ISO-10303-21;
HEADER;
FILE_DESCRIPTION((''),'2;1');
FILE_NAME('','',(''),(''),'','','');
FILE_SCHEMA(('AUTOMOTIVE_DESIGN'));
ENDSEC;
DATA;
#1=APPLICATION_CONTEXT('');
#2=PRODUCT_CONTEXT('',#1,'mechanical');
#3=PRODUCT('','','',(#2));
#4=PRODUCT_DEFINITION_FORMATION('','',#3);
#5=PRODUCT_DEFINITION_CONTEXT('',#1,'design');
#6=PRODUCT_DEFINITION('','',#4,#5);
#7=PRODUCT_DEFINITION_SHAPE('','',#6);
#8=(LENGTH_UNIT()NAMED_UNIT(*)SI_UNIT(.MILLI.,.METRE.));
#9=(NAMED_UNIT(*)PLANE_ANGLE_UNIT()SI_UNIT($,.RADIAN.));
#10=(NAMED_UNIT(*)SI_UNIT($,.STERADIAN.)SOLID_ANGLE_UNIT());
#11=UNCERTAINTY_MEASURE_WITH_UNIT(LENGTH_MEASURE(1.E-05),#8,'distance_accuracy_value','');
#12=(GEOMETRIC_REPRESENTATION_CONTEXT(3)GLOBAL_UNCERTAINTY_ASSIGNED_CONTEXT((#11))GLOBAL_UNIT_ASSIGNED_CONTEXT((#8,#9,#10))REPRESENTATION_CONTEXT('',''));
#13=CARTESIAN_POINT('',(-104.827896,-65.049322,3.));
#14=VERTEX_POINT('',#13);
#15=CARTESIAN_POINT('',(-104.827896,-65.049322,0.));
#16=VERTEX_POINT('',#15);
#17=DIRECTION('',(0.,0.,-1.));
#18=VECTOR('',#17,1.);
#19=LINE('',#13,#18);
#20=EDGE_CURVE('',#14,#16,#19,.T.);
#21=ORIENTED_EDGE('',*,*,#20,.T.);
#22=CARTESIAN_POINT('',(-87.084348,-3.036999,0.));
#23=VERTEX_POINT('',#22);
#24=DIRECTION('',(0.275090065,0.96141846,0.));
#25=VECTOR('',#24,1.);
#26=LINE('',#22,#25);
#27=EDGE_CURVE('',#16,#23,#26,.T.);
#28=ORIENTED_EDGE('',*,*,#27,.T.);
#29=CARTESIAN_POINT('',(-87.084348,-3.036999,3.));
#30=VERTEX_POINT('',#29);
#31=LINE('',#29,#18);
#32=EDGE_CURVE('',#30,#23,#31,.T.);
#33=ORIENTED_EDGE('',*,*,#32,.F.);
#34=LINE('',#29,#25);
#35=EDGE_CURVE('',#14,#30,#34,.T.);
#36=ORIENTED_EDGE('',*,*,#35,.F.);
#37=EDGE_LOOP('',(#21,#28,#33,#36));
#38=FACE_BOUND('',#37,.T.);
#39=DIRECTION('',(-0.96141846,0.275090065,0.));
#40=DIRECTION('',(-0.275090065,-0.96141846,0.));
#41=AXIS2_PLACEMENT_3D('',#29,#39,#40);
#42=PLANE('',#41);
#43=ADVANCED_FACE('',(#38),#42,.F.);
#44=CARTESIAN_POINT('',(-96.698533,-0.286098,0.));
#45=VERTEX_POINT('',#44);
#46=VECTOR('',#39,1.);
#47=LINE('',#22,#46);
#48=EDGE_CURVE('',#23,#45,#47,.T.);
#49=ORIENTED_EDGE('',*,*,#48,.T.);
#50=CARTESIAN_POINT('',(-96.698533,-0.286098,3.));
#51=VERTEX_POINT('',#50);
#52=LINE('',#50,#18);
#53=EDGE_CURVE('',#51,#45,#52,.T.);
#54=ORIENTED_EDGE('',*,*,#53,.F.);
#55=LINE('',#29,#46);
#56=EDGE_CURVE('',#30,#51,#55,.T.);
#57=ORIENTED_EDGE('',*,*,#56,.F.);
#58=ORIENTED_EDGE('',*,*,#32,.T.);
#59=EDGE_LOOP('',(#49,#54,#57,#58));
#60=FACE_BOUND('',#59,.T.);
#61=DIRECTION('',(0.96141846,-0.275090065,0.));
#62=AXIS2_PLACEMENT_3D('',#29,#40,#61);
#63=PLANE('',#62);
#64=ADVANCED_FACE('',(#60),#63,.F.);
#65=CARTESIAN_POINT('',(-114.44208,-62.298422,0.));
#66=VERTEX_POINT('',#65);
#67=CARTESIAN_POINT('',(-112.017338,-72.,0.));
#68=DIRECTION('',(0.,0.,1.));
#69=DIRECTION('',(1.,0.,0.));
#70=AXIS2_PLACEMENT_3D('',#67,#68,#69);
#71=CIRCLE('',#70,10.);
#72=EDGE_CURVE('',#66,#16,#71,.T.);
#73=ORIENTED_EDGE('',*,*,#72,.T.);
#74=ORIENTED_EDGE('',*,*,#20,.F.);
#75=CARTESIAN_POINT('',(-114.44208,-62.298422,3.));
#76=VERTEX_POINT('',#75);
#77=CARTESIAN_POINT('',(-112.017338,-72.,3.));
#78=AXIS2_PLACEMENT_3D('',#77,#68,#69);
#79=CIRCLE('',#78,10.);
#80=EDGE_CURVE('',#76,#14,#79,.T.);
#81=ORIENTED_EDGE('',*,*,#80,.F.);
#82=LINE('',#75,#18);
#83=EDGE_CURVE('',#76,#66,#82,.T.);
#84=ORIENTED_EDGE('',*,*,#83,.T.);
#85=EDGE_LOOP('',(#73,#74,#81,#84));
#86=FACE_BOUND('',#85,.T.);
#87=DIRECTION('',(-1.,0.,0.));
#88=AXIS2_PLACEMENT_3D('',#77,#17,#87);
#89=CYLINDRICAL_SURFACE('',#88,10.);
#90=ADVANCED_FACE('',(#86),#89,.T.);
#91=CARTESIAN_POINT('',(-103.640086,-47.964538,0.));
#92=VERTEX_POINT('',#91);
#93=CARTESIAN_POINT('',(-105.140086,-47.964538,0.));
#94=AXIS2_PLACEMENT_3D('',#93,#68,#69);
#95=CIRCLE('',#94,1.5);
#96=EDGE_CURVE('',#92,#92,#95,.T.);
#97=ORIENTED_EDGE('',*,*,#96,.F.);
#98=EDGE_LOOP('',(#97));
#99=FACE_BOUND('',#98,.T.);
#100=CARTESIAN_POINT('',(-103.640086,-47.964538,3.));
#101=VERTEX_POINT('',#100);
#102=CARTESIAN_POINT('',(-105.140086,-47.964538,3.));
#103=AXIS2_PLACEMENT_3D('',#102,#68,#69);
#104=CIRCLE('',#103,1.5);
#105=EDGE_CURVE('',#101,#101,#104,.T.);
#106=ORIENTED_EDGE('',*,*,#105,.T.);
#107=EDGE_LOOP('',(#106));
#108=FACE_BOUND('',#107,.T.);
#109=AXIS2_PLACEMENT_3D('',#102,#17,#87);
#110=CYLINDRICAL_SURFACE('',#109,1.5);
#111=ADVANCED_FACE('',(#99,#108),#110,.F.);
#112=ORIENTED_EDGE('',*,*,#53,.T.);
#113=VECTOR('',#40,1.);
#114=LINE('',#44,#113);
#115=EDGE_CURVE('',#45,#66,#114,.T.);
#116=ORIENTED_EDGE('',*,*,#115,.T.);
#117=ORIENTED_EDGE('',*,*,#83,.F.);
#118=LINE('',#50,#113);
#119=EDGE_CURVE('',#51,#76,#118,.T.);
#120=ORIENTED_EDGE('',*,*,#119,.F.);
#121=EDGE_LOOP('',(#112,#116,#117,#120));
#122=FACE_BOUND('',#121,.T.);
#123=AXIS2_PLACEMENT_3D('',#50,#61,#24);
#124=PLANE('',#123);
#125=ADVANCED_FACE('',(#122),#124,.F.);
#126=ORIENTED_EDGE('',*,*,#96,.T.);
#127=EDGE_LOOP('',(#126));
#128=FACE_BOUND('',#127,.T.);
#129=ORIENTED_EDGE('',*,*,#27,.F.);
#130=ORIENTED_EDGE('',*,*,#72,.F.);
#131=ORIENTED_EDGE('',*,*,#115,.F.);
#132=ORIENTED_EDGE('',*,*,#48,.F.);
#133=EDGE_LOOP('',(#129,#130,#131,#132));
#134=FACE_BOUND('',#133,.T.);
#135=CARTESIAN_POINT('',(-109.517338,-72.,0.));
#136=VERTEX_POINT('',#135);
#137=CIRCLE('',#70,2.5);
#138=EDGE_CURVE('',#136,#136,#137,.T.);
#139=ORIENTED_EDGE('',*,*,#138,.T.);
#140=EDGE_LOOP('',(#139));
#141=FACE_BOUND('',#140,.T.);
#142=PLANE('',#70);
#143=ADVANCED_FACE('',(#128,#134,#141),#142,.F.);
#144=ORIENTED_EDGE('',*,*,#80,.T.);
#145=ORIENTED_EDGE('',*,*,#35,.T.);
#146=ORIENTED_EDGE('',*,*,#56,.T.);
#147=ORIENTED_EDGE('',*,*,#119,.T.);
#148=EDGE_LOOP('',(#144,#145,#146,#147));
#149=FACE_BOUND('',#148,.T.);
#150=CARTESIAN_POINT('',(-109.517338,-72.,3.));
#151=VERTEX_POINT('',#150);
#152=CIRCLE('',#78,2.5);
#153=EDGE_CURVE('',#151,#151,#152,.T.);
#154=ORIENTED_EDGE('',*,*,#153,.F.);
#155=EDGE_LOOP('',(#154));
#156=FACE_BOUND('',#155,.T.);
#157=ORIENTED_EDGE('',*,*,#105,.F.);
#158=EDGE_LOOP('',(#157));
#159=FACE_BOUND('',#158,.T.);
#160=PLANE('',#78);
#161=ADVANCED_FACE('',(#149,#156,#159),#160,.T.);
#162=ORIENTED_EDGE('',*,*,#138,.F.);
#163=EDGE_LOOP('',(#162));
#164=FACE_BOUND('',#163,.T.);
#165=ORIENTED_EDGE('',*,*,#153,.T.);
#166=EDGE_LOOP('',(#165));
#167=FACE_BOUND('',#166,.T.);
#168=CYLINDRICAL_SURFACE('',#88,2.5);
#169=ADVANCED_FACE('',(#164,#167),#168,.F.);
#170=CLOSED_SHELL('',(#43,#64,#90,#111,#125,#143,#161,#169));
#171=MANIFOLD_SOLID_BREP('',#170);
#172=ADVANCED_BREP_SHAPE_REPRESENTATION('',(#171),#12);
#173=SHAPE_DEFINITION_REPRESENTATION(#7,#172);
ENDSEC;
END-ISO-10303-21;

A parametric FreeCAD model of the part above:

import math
import FreeCAD as App
import Part
import Sketcher
Q = App.Units.Quantity

doc = App.newDocument("Part")
params = doc.addObject("Spreadsheet::Sheet", "Params")
for row, (alias, value) in enumerate([
    ("sketch1_diameter", "5 mm"),
    ("sketch1_diameter2", "3 mm"),
    ("sketch1_radius", "10 mm"),
    ("sketch1_length", "10 mm"),
    ("pad1_length", "3 mm"),
], start=1):
    params.set(f"A{row}", alias)
    params.set(f"B{row}", "=" + value)
    params.setAlias(f"B{row}", alias)

body = doc.addObject("PartDesign::Body", "Body")

# Sketch on XY plane
sketch1 = body.newObject("Sketcher::SketchObject", "Sketch")
sketch1.AttachmentSupport = (doc.getObject("XY_Plane"), [""])
sketch1.MapMode = "FlatFace"
sketch1.addGeometry([
    Part.LineSegment(App.Vector(-104.8, -65, 0), App.Vector(-87.1, -3, 0)),  # 0
    Part.LineSegment(App.Vector(-87.1, -3, 0), App.Vector(-96.7, -0.3, 0)),  # 1
    Part.LineSegment(App.Vector(-96.7, -0.3, 0), App.Vector(-114.4, -62.3, 0)),  # 2
    Part.ArcOfCircle(Part.Circle(App.Vector(-112, -72, 0), App.Vector(0, 0, 1), 10), math.radians(104), math.radians(404)),  # 3
    Part.Circle(App.Vector(-112, -72, 0), App.Vector(0, 0, 1), 2.5),  # 4
    Part.Circle(App.Vector(-105.1, -48, 0), App.Vector(0, 0, 1), 1.5),  # 5
], False)
sketch1.addConstraint([
    Sketcher.Constraint("Coincident", 0, 2, 1, 1),
    Sketcher.Constraint("Coincident", 1, 2, 2, 1),
    Sketcher.Constraint("Coincident", 2, 2, 3, 1),
    Sketcher.Constraint("Coincident", 3, 2, 0, 1),
    Sketcher.Constraint("Coincident", 4, 3, 3, 3),
    Sketcher.Constraint("Perpendicular", 0, 1),
    Sketcher.Constraint("Perpendicular", 1, 2),
    Sketcher.Constraint("Equal", 0, 2),
    Sketcher.Constraint("Diameter", 4, Q("5 mm")),
    Sketcher.Constraint("Diameter", 5, Q("3 mm")),
    Sketcher.Constraint("Radius", 3, Q("10 mm")),
    Sketcher.Constraint("Distance", 1, Q("10 mm")),
    Sketcher.Constraint("DistanceY", 3, 3, -1, 1, Q("72 mm")),
    Sketcher.Constraint("DistanceY", 0, 2, -1, 1, Q("3.036999 mm")),
    Sketcher.Constraint("DistanceY", 1, 2, -1, 1, Q("0.286098 mm")),
    Sketcher.Constraint("DistanceY", 5, 3, -1, 1, Q("47.964538 mm")),
    Sketcher.Constraint("DistanceX", 0, 2, -1, 1, Q("87.084348 mm")),
    Sketcher.Constraint("DistanceX", 3, 3, 5, 3, Q("6.877252 mm")),
])
sketch1.setExpression("Constraints[8]", "Params.sketch1_diameter")
sketch1.setExpression("Constraints[9]", "Params.sketch1_diameter2")
sketch1.setExpression("Constraints[10]", "Params.sketch1_radius")
sketch1.setExpression("Constraints[11]", "Params.sketch1_length")
pad1 = body.newObject("PartDesign::Pad", "Pad")
pad1.Profile = sketch1
pad1.setExpression("Length", "Params.pad1_length")

doc.recompute()
